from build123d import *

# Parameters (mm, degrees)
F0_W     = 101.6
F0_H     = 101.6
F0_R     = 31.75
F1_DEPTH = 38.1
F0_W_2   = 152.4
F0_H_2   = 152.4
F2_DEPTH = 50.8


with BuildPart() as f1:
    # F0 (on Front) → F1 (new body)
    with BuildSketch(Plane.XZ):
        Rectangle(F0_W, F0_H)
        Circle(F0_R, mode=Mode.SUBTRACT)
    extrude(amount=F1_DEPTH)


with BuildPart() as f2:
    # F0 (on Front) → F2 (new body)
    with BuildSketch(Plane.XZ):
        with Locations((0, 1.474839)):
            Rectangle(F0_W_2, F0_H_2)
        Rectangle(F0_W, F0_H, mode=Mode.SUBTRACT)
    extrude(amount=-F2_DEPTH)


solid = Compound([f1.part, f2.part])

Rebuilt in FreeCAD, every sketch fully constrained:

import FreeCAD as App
import Part
import Sketcher
Q = App.Units.Quantity


def add_polygon(sketch, points):
    """Adds a closed chain of lines whose ends are joined by coincident constraints."""
    first, n = sketch.GeometryCount, len(points)
    for a, b in zip(points, points[1:] + points[:1]):
        sketch.addGeometry(Part.LineSegment(App.Vector(*a, 0), App.Vector(*b, 0)), False)
    for i in range(n):
        sketch.addConstraint(Sketcher.Constraint("Coincident", first + i, 2, first + (i + 1) % n, 1))

doc = App.newDocument("Part")
body = doc.addObject("PartDesign::Body", "Body")

# Sketch on XZ plane
sketch1 = doc.addObject("Sketcher::SketchObject", "Sketch")
body.addObject(sketch1)
sketch1.AttachmentSupport = (doc.XZ_Plane, [""])
sketch1.MapMode = "FlatFace"
add_polygon(sketch1, [(-50.8, 50.8), (-50.8, -50.8), (50.8, -50.8), (50.8, 50.8)])  # lines 0-3
sketch1.addGeometry(Part.Circle(App.Vector(0, 0, 0), App.Vector(0, 0, 1), 31.75), False)  # 4
sketch1.addConstraint([
    Sketcher.Constraint("Vertical", 0),
    Sketcher.Constraint("Horizontal", 1),
    Sketcher.Constraint("Vertical", 2),
    Sketcher.Constraint("Horizontal", 3),
    Sketcher.Constraint("Coincident", 4, 3, -1, 1),
    Sketcher.Constraint("Symmetric", 0, 2, 2, 2, -1, 1),
    Sketcher.Constraint("Equal", 3, 0),
    Sketcher.Constraint("Diameter", 4, Q("2.5 in")),
    Sketcher.Constraint("DistanceX", 1, 1, 1, 2, Q("4 in")),
])
pad1 = doc.addObject("PartDesign::Pad", "Pad")
body.addObject(pad1)
pad1.Profile = sketch1
pad1.Length = Q("1.5 in")
body2 = doc.addObject("PartDesign::Body", "Body001")

# Sketch on XZ plane
sketch2 = doc.addObject("Sketcher::SketchObject", "Sketch001")
body2.addObject(sketch2)
sketch2.AttachmentSupport = (doc.getObject("XZ_Plane001"), [""])
sketch2.MapMode = "FlatFace"
add_polygon(sketch2, [(-76.2, 77.674839), (-76.2, -74.725161), (76.2, -74.725161), (76.2, 77.674839)])  # lines 0-3
add_polygon(sketch2, [(50.8, -50.8), (-50.8, -50.8), (-50.8, 50.8), (50.8, 50.8)])  # lines 4-7
sketch2.addConstraint([
    Sketcher.Constraint("Vertical", 0),
    Sketcher.Constraint("Horizontal", 1),
    Sketcher.Constraint("Vertical", 2),
    Sketcher.Constraint("Horizontal", 3),
    Sketcher.Constraint("Horizontal", 4),
    Sketcher.Constraint("Vertical", 5),
    Sketcher.Constraint("Horizontal", 6),
    Sketcher.Constraint("Vertical", 7),
    Sketcher.Constraint("Symmetric", 4, 2, 6, 2, -1, 1),
    Sketcher.Constraint("Equal", 3, 0),
    Sketcher.Constraint("Equal", 6, 5),
    Sketcher.Constraint("DistanceX", 1, 1, 1, 2, Q("6 in")),
    Sketcher.Constraint("DistanceX", 4, 2, 4, 1, Q("4 in")),
    Sketcher.Constraint("DistanceX", 0, 2, -1, 1, Q("3 in")),
    Sketcher.Constraint("DistanceY", 0, 2, -1, 1, 74.725161),
])
pad2 = doc.addObject("PartDesign::Pad", "Pad001")
body2.addObject(pad2)
pad2.Profile = sketch2
pad2.Length = Q("2 in")
pad2.Reversed = True

doc.recompute()
